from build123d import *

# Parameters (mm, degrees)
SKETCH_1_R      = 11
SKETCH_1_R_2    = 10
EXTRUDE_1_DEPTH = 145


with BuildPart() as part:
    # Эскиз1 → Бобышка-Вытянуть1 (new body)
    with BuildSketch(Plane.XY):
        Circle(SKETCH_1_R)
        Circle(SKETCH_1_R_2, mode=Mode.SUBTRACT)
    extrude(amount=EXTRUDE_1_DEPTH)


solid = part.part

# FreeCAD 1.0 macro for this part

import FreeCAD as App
import Part
import Sketcher
from FreeCAD import Vector

doc = App.newDocument("Part")
body = doc.addObject("PartDesign::Body", "Body")

# Sketch on XY plane
sketch1 = body.newObject("Sketcher::SketchObject", "Sketch")
sketch1.AttachmentSupport = (doc.getObject("XY_Plane"), [""])
sketch1.MapMode = "FlatFace"
sketch1.addGeometry([
    Part.Circle(Vector(0, 0, 0), Vector(0, 0, 1), 11),
    Part.Circle(Vector(0, 0, 0), Vector(0, 0, 1), 10),
], False)
sketch1.addConstraint([
    Sketcher.Constraint("Coincident", 0, 3, -1, 1),
    Sketcher.Constraint("Coincident", 1, 3, -1, 1),
    Sketcher.Constraint("Diameter", 0, 22.0),
    Sketcher.Constraint("Diameter", 1, 20.0),
])
pad1 = body.newObject("PartDesign::Pad", "Pad")
pad1.Profile = sketch1
pad1.Length = 145

doc.recompute()
